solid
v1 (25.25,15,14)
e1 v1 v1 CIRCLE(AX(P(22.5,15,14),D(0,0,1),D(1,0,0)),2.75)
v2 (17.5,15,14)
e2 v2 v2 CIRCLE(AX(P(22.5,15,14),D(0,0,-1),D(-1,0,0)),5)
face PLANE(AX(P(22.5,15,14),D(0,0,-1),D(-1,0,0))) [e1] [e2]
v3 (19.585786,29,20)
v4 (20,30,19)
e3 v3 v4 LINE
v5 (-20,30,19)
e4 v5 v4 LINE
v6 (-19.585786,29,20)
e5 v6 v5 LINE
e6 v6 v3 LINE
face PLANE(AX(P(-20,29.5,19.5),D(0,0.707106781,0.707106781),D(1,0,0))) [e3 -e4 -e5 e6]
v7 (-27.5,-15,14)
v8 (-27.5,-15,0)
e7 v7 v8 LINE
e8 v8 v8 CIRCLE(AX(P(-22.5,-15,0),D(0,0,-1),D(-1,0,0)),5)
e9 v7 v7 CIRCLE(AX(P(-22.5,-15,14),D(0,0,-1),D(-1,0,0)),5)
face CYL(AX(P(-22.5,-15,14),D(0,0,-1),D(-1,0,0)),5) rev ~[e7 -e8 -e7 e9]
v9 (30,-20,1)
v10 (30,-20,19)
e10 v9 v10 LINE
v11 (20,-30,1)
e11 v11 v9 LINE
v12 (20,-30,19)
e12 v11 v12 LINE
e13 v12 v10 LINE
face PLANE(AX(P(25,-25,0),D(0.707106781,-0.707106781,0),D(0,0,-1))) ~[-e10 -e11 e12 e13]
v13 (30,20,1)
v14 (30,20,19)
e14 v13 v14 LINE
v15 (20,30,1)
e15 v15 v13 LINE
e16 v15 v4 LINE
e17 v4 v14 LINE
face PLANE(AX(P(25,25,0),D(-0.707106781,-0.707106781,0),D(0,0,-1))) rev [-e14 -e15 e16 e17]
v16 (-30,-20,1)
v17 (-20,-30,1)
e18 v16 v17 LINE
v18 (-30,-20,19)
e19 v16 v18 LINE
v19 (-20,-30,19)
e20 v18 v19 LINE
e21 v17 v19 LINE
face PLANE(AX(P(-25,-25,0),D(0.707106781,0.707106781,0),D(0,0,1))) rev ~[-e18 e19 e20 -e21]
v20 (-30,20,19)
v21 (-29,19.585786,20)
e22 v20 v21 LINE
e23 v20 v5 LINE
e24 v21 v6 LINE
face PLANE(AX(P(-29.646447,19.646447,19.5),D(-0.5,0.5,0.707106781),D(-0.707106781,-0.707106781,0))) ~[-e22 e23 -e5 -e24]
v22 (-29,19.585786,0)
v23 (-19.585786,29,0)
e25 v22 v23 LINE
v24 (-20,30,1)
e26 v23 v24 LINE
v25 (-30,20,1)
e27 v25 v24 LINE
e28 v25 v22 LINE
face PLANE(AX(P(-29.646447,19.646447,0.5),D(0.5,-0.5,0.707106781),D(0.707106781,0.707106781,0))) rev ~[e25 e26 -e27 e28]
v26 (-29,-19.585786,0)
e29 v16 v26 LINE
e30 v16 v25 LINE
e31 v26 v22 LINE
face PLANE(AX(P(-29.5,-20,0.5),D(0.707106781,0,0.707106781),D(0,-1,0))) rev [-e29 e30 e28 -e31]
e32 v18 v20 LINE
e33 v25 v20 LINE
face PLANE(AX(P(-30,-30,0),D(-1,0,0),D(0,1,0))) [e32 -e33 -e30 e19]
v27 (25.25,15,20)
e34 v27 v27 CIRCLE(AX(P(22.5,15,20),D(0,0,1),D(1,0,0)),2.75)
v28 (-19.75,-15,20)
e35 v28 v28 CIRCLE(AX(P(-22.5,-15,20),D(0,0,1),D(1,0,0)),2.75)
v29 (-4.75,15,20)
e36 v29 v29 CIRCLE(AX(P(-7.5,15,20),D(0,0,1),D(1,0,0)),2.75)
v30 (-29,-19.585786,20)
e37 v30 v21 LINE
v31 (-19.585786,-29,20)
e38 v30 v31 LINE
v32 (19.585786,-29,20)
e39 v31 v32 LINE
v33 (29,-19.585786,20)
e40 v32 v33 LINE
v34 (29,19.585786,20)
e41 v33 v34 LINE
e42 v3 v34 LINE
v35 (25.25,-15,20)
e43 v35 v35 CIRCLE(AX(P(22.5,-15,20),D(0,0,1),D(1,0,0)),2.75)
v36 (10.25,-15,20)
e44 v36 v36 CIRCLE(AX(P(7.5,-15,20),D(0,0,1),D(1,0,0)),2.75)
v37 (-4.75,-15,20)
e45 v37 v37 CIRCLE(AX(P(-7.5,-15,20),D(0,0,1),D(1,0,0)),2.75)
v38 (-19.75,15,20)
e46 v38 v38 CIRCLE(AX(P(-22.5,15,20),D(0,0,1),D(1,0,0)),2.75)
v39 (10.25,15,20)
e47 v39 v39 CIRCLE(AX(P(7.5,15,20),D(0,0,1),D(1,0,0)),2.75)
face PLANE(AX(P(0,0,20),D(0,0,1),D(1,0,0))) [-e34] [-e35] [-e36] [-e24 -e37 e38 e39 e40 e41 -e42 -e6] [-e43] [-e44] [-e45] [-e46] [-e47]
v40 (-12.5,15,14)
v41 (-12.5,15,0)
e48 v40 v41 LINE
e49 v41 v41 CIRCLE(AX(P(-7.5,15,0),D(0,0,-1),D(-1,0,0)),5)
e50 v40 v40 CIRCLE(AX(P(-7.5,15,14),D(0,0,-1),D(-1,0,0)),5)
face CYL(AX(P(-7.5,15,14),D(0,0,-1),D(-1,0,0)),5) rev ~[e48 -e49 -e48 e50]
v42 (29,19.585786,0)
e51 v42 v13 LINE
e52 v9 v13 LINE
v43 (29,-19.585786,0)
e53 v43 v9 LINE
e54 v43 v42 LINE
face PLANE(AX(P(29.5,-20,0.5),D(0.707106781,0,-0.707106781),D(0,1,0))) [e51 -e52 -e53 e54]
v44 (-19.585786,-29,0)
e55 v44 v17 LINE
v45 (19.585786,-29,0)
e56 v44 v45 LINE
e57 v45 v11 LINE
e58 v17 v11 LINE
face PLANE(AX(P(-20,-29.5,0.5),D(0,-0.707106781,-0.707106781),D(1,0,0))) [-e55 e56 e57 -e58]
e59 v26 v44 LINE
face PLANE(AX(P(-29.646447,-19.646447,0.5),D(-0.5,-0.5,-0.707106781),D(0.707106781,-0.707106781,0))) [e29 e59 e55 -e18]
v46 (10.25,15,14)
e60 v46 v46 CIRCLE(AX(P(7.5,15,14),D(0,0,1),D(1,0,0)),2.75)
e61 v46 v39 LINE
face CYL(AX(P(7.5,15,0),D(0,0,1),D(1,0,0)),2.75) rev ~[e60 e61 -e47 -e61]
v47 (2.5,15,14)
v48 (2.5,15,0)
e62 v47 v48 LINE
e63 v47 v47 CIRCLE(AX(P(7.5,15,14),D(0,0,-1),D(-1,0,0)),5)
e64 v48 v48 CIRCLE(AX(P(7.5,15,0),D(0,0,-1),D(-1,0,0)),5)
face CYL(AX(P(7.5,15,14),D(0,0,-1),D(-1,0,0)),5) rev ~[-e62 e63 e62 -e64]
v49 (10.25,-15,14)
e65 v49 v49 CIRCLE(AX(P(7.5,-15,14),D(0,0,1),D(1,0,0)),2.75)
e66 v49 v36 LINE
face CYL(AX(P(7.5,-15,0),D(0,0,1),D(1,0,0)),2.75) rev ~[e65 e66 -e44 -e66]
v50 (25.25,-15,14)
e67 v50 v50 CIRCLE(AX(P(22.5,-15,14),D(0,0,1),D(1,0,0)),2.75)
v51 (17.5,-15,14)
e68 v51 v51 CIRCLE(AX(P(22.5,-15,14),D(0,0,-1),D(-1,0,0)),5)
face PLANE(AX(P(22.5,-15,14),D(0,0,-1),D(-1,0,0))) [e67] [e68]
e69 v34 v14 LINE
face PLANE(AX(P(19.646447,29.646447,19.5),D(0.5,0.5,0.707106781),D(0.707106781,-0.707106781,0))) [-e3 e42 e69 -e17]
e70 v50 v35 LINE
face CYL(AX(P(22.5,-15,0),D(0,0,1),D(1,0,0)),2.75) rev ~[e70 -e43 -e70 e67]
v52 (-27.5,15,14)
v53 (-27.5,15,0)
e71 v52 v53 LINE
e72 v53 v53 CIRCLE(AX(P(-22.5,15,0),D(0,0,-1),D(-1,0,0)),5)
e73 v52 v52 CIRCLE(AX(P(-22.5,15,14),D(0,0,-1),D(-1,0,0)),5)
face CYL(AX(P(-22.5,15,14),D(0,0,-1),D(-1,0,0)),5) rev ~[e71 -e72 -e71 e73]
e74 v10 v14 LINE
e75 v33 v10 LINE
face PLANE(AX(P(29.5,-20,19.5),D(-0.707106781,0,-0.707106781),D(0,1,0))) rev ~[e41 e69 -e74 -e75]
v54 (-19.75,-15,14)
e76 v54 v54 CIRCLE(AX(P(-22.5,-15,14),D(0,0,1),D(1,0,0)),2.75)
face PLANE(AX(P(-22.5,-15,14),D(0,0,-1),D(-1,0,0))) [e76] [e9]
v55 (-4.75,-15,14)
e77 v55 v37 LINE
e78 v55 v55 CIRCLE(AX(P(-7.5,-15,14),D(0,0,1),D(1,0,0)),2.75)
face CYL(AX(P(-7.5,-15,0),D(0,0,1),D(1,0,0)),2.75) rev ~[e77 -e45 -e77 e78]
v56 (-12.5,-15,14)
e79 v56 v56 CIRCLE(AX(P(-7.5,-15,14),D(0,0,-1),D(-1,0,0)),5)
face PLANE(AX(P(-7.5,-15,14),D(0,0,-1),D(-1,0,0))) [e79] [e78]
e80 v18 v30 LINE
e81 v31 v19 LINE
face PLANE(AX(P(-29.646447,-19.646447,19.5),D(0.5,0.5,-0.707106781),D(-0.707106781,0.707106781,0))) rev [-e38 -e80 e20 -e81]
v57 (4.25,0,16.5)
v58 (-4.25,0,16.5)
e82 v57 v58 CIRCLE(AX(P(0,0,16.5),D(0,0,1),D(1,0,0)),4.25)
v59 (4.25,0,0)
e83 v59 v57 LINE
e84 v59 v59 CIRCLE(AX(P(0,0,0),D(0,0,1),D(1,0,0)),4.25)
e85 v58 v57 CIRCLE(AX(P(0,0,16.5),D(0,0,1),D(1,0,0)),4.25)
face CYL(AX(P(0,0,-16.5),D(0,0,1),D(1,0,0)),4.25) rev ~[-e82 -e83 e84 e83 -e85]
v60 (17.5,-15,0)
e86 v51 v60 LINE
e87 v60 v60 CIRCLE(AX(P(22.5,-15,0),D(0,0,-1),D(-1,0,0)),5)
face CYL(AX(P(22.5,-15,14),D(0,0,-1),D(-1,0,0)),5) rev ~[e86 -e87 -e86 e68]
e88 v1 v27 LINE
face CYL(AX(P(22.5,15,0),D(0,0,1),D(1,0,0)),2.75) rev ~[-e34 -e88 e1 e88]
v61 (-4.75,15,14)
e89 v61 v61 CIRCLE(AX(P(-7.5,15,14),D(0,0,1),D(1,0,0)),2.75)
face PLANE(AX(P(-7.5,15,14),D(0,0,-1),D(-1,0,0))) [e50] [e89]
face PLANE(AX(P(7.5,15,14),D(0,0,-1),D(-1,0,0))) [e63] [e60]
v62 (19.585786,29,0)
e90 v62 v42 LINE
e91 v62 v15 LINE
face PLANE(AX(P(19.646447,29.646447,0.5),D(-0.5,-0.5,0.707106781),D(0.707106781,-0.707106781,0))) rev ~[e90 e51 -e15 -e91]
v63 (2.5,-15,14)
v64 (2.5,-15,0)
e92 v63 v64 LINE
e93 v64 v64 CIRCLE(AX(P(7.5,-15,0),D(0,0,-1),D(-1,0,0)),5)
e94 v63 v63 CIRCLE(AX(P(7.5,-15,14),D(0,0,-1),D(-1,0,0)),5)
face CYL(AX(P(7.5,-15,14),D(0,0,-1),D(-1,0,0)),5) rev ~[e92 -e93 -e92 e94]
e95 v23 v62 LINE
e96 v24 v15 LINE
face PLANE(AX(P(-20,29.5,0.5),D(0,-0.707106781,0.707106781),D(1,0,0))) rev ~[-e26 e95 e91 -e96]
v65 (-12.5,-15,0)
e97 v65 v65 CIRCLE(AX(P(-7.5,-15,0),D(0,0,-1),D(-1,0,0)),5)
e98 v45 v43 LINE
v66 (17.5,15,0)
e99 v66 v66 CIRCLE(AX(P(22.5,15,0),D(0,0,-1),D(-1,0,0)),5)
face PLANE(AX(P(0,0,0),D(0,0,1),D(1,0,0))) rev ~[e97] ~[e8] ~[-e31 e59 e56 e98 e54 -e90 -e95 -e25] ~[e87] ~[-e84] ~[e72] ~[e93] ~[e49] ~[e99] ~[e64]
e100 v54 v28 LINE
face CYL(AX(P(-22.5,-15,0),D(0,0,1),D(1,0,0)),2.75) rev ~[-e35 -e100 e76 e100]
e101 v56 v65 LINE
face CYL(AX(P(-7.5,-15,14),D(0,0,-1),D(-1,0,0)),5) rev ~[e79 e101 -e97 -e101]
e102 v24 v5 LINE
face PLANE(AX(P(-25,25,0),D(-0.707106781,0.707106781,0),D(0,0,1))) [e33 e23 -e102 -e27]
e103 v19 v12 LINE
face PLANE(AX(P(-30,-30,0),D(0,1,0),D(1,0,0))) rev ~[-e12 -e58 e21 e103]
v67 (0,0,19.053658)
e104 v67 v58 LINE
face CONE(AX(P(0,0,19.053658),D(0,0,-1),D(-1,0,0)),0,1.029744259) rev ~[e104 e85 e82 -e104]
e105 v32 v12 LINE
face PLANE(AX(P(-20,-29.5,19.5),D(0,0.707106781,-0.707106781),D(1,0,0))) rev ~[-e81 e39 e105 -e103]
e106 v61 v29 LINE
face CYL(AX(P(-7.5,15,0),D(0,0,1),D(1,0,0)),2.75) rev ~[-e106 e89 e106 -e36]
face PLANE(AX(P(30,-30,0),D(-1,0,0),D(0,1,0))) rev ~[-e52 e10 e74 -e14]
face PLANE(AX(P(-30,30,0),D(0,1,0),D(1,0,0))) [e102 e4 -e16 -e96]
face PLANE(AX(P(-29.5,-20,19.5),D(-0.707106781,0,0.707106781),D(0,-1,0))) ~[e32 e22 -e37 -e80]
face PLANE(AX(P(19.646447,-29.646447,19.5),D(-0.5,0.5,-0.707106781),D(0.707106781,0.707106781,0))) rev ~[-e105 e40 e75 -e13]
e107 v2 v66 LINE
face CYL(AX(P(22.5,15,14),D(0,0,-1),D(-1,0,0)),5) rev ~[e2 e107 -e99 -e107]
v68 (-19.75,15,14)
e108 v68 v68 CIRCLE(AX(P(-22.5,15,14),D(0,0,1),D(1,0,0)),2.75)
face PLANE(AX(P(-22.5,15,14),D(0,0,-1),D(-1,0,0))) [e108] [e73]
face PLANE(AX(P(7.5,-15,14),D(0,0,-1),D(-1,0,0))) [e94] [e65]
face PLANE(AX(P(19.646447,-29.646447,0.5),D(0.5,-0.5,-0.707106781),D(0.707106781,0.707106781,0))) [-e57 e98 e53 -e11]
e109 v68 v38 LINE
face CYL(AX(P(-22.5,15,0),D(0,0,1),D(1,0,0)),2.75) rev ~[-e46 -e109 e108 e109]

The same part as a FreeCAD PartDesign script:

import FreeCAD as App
import Part
import Sketcher
from FreeCAD import Vector
Q = App.Units.Quantity


def edges_at(feature, points):
    """Names of the edges that pass closest to the given points."""
    edges = feature.Shape.Edges
    near = lambda p: min(range(len(edges)), key=lambda i: edges[i].distToShape(Part.Vertex(*p))[0])
    return sorted({f"Edge{near(p) + 1}" for p in points})

doc = App.newDocument("Part")
body = doc.addObject("PartDesign::Body", "Body")

# Sketch on XY plane
sketch1 = body.newObject("Sketcher::SketchObject", "Sketch")
sketch1.AttachmentSupport = (doc.getObject("XY_Plane"), [""])
sketch1.MapMode = "FlatFace"
sketch1.addGeometry([
    Part.LineSegment(Vector(-30, 30, 0), Vector(-30, -30, 0)),
    Part.LineSegment(Vector(-30, -30, 0), Vector(30, -30, 0)),
    Part.LineSegment(Vector(30, -30, 0), Vector(30, 30, 0)),
    Part.LineSegment(Vector(30, 30, 0), Vector(-30, 30, 0)),
], False)
sketch1.addConstraint([
    Sketcher.Constraint("Coincident", 0, 2, 1, 1),
    Sketcher.Constraint("Coincident", 1, 2, 2, 1),
    Sketcher.Constraint("Coincident", 2, 2, 3, 1),
    Sketcher.Constraint("Coincident", 3, 2, 0, 1),
    Sketcher.Constraint("Vertical", 0),
    Sketcher.Constraint("Horizontal", 1),
    Sketcher.Constraint("Vertical", 2),
    Sketcher.Constraint("Horizontal", 3),
    Sketcher.Constraint("Symmetric", 0, 2, 2, 2, -1, 1),
    Sketcher.Constraint("Equal", 3, 0),
    Sketcher.Constraint("DistanceX", 1, 1, 1, 2, Q("60 mm")),
])
pad1 = body.newObject("PartDesign::Pad", "Pad")
pad1.Profile = sketch1
pad1.Length = 20

# Sketch on XY plane
sketch2 = body.newObject("Sketcher::SketchObject", "Sketch001")
sketch2.AttachmentSupport = (doc.getObject("XY_Plane"), [""])
sketch2.MapMode = "FlatFace"
sketch2.addGeometry([
    Part.Circle(Vector(22.5, 15, 0), Vector(0, 0, 1), 2.8),  # 0
    Part.Circle(Vector(22.5, -15, 0), Vector(0, 0, 1), 2.8),  # 1
    Part.Circle(Vector(7.5, 15, 0), Vector(0, 0, 1), 2.8),  # 2
    Part.Circle(Vector(7.5, -15, 0), Vector(0, 0, 1), 2.8),  # 3
    Part.Circle(Vector(-22.5, -15, 0), Vector(0, 0, 1), 2.8),  # 4
    Part.Circle(Vector(-7.5, 15, 0), Vector(0, 0, 1), 2.8),  # 5
    Part.Circle(Vector(-7.5, -15, 0), Vector(0, 0, 1), 2.8),  # 6
    Part.Circle(Vector(-22.5, 15, 0), Vector(0, 0, 1), 2.8),  # 7
], False)
sketch2.addConstraint([
    Sketcher.Constraint("Equal", 0, 1),
    Sketcher.Constraint("Equal", 1, 2),
    Sketcher.Constraint("Equal", 2, 3),
    Sketcher.Constraint("Equal", 3, 4),
    Sketcher.Constraint("Equal", 4, 5),
    Sketcher.Constraint("Equal", 5, 6),
    Sketcher.Constraint("Equal", 6, 7),
    Sketcher.Constraint("Symmetric", 0, 3, 4, 3, -1, 1),
    Sketcher.Constraint("Symmetric", 3, 3, 5, 3, -1, 1),
    Sketcher.Constraint("Symmetric", 2, 3, 6, 3, -1, 1),
    Sketcher.Constraint("Symmetric", 1, 3, 7, 3, -1, 1),
    Sketcher.Constraint("Symmetric", 1, 3, 4, 3, -2),
    Sketcher.Constraint("Symmetric", 2, 3, 5, 3, -2),
    Sketcher.Constraint("Horizontal", 0, 3, 2, 3),
    Sketcher.Constraint("Diameter", 0, Q("5.5 mm")),
    Sketcher.Constraint("DistanceY", -1, 1, 0, 3, Q("15 mm")),
    Sketcher.Constraint("DistanceX", 2, 3, 0, 3, Q("15 mm")),
    Sketcher.Constraint("DistanceX", 4, 3, 3, 3, Q("30 mm")),
])
doc.recompute()
hole = body.newObject("PartDesign::Hole", "Hole")
hole.Profile = sketch2
hole.ThreadType = "None"
hole.Diameter = 5.5
hole.DepthType = "ThroughAll"
hole.HoleCutType = "Counterbore"
hole.HoleCutDiameter = 10
hole.HoleCutDepth = 14
hole.Reversed = True
doc.recompute()

chamfer = body.newObject("PartDesign::Chamfer", "Chamfer")
chamfer.Base = (hole, edges_at(hole, [
    (30, -30, 10),
    (-30, -30, 10),
    (-30, 30, 10),
    (30, 30, 10),
]))
chamfer.Size = 10
doc.recompute()

chamfer2 = body.newObject("PartDesign::Chamfer", "Chamfer001")
chamfer2.Base = (chamfer, edges_at(chamfer, [
    (0, -30, 0),
    (0, -30, 20),
    (30, 0, 0),
    (-30, 0, 0),
    (0, 30, 0),
    (25, 25, 0),
    (25, -25, 0),
    (-25, 25, 0),
    (-25, -25, 0),
    (-30, 0, 20),
    (30, 0, 20),
    (0, 30, 20),
    (25, 25, 20),
    (25, -25, 20),
    (-25, 25, 20),
    (-25, -25, 20),
]))
chamfer2.Size = 1

# Sketch on XY plane
sketch3 = body.newObject("Sketcher::SketchObject", "Sketch002")
sketch3.AttachmentSupport = (doc.getObject("XY_Plane"), [""])
sketch3.MapMode = "FlatFace"
sketch3.addGeometry(Part.Circle(Vector(0, 0, 0), Vector(0, 0, 1), 4.2), False)
sketch3.addConstraint([
    Sketcher.Constraint("Coincident", 0, 3, -1, 1),
    Sketcher.Constraint("Diameter", 0, Q("8.5 mm")),
])
doc.recompute()
hole2 = body.newObject("PartDesign::Hole", "Hole001")
hole2.Profile = sketch3
hole2.ThreadType = "None"
hole2.Diameter = 8.5
hole2.DepthType = "Dimension"
hole2.Depth = 16.5
hole2.DrillPoint = "Angled"
hole2.DrillPointAngle = 118
hole2.Reversed = True

doc.recompute()
